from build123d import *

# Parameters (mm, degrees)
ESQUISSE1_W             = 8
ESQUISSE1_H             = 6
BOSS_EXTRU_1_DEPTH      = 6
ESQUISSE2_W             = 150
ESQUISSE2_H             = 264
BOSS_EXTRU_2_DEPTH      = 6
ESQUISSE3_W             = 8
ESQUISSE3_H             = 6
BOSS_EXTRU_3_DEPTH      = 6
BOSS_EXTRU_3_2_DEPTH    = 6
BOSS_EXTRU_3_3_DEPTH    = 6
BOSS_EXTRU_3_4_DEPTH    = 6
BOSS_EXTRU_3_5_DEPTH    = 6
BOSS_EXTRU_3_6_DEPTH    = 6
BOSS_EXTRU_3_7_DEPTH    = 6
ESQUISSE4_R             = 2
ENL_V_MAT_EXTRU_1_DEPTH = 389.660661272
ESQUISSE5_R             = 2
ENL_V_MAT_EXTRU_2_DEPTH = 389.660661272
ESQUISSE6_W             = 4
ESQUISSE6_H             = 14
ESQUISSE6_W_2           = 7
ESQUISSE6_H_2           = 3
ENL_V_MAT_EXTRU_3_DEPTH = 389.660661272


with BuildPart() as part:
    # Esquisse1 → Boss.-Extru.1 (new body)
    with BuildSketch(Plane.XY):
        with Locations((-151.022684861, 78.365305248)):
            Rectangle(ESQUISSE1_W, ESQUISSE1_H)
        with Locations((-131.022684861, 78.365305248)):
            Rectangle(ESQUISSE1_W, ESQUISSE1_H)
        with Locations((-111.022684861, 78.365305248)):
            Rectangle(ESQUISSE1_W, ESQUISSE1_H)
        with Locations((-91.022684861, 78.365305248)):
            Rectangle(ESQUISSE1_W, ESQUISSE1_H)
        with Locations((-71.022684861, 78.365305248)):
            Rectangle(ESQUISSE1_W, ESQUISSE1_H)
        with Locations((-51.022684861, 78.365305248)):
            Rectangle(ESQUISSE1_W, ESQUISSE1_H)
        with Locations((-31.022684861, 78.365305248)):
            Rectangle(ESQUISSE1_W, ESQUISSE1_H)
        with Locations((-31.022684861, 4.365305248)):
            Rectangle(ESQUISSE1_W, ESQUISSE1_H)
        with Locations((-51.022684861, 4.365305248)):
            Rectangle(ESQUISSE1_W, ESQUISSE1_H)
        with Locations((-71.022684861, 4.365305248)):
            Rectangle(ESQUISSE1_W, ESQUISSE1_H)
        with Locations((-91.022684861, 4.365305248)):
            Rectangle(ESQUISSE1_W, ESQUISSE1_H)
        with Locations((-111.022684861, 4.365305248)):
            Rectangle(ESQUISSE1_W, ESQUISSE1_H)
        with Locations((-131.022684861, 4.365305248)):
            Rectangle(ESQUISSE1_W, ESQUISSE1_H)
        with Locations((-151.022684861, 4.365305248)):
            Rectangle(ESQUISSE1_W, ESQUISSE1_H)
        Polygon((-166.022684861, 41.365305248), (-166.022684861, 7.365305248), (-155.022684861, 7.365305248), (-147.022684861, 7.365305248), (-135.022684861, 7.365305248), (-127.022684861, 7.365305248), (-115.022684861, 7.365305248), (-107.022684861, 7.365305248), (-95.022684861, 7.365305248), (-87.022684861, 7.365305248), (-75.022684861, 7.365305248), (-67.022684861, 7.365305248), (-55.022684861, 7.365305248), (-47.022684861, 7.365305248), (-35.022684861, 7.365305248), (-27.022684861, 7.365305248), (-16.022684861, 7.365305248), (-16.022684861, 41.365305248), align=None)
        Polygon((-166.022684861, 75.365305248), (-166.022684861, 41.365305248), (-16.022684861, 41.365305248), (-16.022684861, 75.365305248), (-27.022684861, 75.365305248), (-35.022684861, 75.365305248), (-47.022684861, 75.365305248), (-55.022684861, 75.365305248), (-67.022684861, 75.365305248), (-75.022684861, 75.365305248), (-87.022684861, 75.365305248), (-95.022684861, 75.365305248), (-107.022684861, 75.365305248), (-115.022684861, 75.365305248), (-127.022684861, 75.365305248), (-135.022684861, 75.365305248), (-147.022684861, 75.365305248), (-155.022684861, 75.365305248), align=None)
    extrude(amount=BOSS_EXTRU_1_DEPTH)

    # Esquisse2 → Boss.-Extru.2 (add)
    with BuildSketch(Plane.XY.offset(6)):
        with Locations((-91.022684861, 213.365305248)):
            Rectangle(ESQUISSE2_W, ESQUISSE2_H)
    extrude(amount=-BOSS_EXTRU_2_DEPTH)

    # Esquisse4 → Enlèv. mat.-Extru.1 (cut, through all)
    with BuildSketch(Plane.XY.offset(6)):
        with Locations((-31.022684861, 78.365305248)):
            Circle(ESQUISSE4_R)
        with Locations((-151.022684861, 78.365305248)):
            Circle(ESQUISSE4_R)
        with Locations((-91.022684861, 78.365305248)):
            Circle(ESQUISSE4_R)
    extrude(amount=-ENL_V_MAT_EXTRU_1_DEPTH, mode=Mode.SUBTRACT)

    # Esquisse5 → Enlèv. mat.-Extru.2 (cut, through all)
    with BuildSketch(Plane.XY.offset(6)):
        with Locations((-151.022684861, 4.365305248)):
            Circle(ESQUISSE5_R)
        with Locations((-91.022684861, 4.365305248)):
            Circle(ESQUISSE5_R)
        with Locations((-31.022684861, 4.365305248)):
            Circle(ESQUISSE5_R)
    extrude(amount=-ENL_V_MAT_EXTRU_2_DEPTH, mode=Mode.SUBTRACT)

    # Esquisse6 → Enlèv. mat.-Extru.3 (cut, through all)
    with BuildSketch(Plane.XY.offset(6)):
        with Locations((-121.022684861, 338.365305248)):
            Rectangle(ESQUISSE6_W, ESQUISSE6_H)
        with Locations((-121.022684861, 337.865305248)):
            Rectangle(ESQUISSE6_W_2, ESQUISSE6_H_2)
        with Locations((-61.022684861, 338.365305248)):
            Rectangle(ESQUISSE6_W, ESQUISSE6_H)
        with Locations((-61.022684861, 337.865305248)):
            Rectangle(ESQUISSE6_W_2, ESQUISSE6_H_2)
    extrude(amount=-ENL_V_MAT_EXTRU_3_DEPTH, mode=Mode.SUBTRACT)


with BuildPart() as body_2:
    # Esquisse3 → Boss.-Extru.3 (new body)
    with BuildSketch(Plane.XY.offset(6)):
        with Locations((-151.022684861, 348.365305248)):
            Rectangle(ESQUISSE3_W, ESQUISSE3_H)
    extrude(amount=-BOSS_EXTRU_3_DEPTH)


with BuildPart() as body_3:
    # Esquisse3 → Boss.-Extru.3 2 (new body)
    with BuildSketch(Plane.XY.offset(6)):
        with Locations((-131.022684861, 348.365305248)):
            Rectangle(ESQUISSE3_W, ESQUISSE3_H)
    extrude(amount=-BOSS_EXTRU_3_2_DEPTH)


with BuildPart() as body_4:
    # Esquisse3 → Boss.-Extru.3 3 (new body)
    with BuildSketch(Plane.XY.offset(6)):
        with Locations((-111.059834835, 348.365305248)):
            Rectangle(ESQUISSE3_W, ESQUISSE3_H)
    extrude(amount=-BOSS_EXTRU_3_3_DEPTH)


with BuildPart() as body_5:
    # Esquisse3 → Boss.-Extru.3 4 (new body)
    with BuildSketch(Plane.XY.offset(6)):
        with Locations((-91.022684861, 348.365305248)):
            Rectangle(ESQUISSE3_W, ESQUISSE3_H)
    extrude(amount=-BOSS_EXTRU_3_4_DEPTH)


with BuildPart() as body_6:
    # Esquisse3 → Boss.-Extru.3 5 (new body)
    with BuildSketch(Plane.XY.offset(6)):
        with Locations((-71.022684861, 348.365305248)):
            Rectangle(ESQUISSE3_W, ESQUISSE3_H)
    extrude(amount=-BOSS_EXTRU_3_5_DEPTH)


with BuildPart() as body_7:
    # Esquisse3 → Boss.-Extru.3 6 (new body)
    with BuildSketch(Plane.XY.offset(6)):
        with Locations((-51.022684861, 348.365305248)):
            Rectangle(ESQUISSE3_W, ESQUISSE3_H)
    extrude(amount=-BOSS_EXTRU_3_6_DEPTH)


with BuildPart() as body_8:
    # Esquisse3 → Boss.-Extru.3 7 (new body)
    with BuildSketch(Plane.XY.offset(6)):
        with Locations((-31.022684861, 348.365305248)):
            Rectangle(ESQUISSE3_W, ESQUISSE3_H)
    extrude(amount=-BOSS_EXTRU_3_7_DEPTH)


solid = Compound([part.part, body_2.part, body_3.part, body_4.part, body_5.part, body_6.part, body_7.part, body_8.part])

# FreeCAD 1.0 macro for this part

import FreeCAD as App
import Part
import Sketcher
from FreeCAD import Vector

doc = App.newDocument("Part")
body = doc.addObject("PartDesign::Body", "Body")

# Sketch on XY plane
sketch1 = body.newObject("Sketcher::SketchObject", "Sketch")
sketch1.AttachmentSupport = (doc.getObject("XY_Plane"), [""])
sketch1.MapMode = "FlatFace"
sketch1.addGeometry([
    Part.LineSegment(Vector(-155.022685, 81.365305, 0), Vector(-155.022685, 75.365305, 0)),  # 0
    Part.LineSegment(Vector(-155.022685, 75.365305, 0), Vector(-166.022685, 75.365305, 0)),  # 1
    Part.LineSegment(Vector(-166.022685, 75.365305, 0), Vector(-166.022685, 7.365305, 0)),  # 2
    Part.LineSegment(Vector(-166.022685, 7.365305, 0), Vector(-155.022685, 7.365305, 0)),  # 3
    Part.LineSegment(Vector(-155.022685, 7.365305, 0), Vector(-155.022685, 1.365305, 0)),  # 4
    Part.LineSegment(Vector(-155.022685, 1.365305, 0), Vector(-147.022685, 1.365305, 0)),  # 5
    Part.LineSegment(Vector(-147.022685, 1.365305, 0), Vector(-147.022685, 7.365305, 0)),  # 6
    Part.LineSegment(Vector(-147.022685, 7.365305, 0), Vector(-135.022685, 7.365305, 0)),  # 7
    Part.LineSegment(Vector(-135.022685, 7.365305, 0), Vector(-135.022685, 1.365305, 0)),  # 8
    Part.LineSegment(Vector(-135.022685, 1.365305, 0), Vector(-127.022685, 1.365305, 0)),  # 9
    Part.LineSegment(Vector(-127.022685, 1.365305, 0), Vector(-127.022685, 7.365305, 0)),  # 10
    Part.LineSegment(Vector(-127.022685, 7.365305, 0), Vector(-115.022685, 7.365305, 0)),  # 11
    Part.LineSegment(Vector(-115.022685, 7.365305, 0), Vector(-115.022685, 1.365305, 0)),  # 12
    Part.LineSegment(Vector(-115.022685, 1.365305, 0), Vector(-107.022685, 1.365305, 0)),  # 13
    Part.LineSegment(Vector(-107.022685, 1.365305, 0), Vector(-107.022685, 7.365305, 0)),  # 14
    Part.LineSegment(Vector(-107.022685, 7.365305, 0), Vector(-95.022685, 7.365305, 0)),  # 15
    Part.LineSegment(Vector(-95.022685, 7.365305, 0), Vector(-95.022685, 1.365305, 0)),  # 16
    Part.LineSegment(Vector(-95.022685, 1.365305, 0), Vector(-87.022685, 1.365305, 0)),  # 17
    Part.LineSegment(Vector(-87.022685, 1.365305, 0), Vector(-87.022685, 7.365305, 0)),  # 18
    Part.LineSegment(Vector(-87.022685, 7.365305, 0), Vector(-75.022685, 7.365305, 0)),  # 19
    Part.LineSegment(Vector(-75.022685, 7.365305, 0), Vector(-75.022685, 1.365305, 0)),  # 20
    Part.LineSegment(Vector(-75.022685, 1.365305, 0), Vector(-67.022685, 1.365305, 0)),  # 21
    Part.LineSegment(Vector(-67.022685, 1.365305, 0), Vector(-67.022685, 7.365305, 0)),  # 22
    Part.LineSegment(Vector(-67.022685, 7.365305, 0), Vector(-55.022685, 7.365305, 0)),  # 23
    Part.LineSegment(Vector(-55.022685, 7.365305, 0), Vector(-55.022685, 1.365305, 0)),  # 24
    Part.LineSegment(Vector(-55.022685, 1.365305, 0), Vector(-47.022685, 1.365305, 0)),  # 25
    Part.LineSegment(Vector(-47.022685, 1.365305, 0), Vector(-47.022685, 7.365305, 0)),  # 26
    Part.LineSegment(Vector(-47.022685, 7.365305, 0), Vector(-35.022685, 7.365305, 0)),  # 27
    Part.LineSegment(Vector(-35.022685, 7.365305, 0), Vector(-35.022685, 1.365305, 0)),  # 28
    Part.LineSegment(Vector(-35.022685, 1.365305, 0), Vector(-27.022685, 1.365305, 0)),  # 29
    Part.LineSegment(Vector(-27.022685, 1.365305, 0), Vector(-27.022685, 7.365305, 0)),  # 30
    Part.LineSegment(Vector(-27.022685, 7.365305, 0), Vector(-16.022685, 7.365305, 0)),  # 31
    Part.LineSegment(Vector(-16.022685, 7.365305, 0), Vector(-16.022685, 75.365305, 0)),  # 32
    Part.LineSegment(Vector(-16.022685, 75.365305, 0), Vector(-27.022685, 75.365305, 0)),  # 33
    Part.LineSegment(Vector(-27.022685, 75.365305, 0), Vector(-27.022685, 81.365305, 0)),  # 34
    Part.LineSegment(Vector(-27.022685, 81.365305, 0), Vector(-35.022685, 81.365305, 0)),  # 35
    Part.LineSegment(Vector(-35.022685, 81.365305, 0), Vector(-35.022685, 75.365305, 0)),  # 36
    Part.LineSegment(Vector(-35.022685, 75.365305, 0), Vector(-47.022685, 75.365305, 0)),  # 37
    Part.LineSegment(Vector(-47.022685, 75.365305, 0), Vector(-47.022685, 81.365305, 0)),  # 38
    Part.LineSegment(Vector(-47.022685, 81.365305, 0), Vector(-55.022685, 81.365305, 0)),  # 39
    Part.LineSegment(Vector(-55.022685, 81.365305, 0), Vector(-55.022685, 75.365305, 0)),  # 40
    Part.LineSegment(Vector(-55.022685, 75.365305, 0), Vector(-67.022685, 75.365305, 0)),  # 41
    Part.LineSegment(Vector(-67.022685, 75.365305, 0), Vector(-67.022685, 81.365305, 0)),  # 42
    Part.LineSegment(Vector(-67.022685, 81.365305, 0), Vector(-75.022685, 81.365305, 0)),  # 43
    Part.LineSegment(Vector(-75.022685, 81.365305, 0), Vector(-75.022685, 75.365305, 0)),  # 44
    Part.LineSegment(Vector(-75.022685, 75.365305, 0), Vector(-87.022685, 75.365305, 0)),  # 45
    Part.LineSegment(Vector(-87.022685, 75.365305, 0), Vector(-87.022685, 81.365305, 0)),  # 46
    Part.LineSegment(Vector(-87.022685, 81.365305, 0), Vector(-95.022685, 81.365305, 0)),  # 47
    Part.LineSegment(Vector(-95.022685, 81.365305, 0), Vector(-95.022685, 75.365305, 0)),  # 48
    Part.LineSegment(Vector(-95.022685, 75.365305, 0), Vector(-107.022685, 75.365305, 0)),  # 49
    Part.LineSegment(Vector(-107.022685, 75.365305, 0), Vector(-107.022685, 81.365305, 0)),  # 50
    Part.LineSegment(Vector(-107.022685, 81.365305, 0), Vector(-115.022685, 81.365305, 0)),  # 51
    Part.LineSegment(Vector(-115.022685, 81.365305, 0), Vector(-115.022685, 75.365305, 0)),  # 52
    Part.LineSegment(Vector(-115.022685, 75.365305, 0), Vector(-127.022685, 75.365305, 0)),  # 53
    Part.LineSegment(Vector(-127.022685, 75.365305, 0), Vector(-127.022685, 81.365305, 0)),  # 54
    Part.LineSegment(Vector(-127.022685, 81.365305, 0), Vector(-135.022685, 81.365305, 0)),  # 55
    Part.LineSegment(Vector(-135.022685, 81.365305, 0), Vector(-135.022685, 75.365305, 0)),  # 56
    Part.LineSegment(Vector(-135.022685, 75.365305, 0), Vector(-147.022685, 75.365305, 0)),  # 57
    Part.LineSegment(Vector(-147.022685, 75.365305, 0), Vector(-147.022685, 81.365305, 0)),  # 58
    Part.LineSegment(Vector(-147.022685, 81.365305, 0), Vector(-155.022685, 81.365305, 0)),  # 59
], False)
sketch1.addConstraint([
    Sketcher.Constraint("Coincident", 0, 2, 1, 1),
    Sketcher.Constraint("Coincident", 1, 2, 2, 1),
    Sketcher.Constraint("Coincident", 2, 2, 3, 1),
    Sketcher.Constraint("Coincident", 3, 2, 4, 1),
    Sketcher.Constraint("Coincident", 4, 2, 5, 1),
    Sketcher.Constraint("Coincident", 5, 2, 6, 1),
    Sketcher.Constraint("Coincident", 6, 2, 7, 1),
    Sketcher.Constraint("Coincident", 7, 2, 8, 1),
    Sketcher.Constraint("Coincident", 8, 2, 9, 1),
    Sketcher.Constraint("Coincident", 9, 2, 10, 1),
    Sketcher.Constraint("Coincident", 10, 2, 11, 1),
    Sketcher.Constraint("Coincident", 11, 2, 12, 1),
    Sketcher.Constraint("Coincident", 12, 2, 13, 1),
    Sketcher.Constraint("Coincident", 13, 2, 14, 1),
    Sketcher.Constraint("Coincident", 14, 2, 15, 1),
    Sketcher.Constraint("Coincident", 15, 2, 16, 1),
    Sketcher.Constraint("Coincident", 16, 2, 17, 1),
    Sketcher.Constraint("Coincident", 17, 2, 18, 1),
    Sketcher.Constraint("Coincident", 18, 2, 19, 1),
    Sketcher.Constraint("Coincident", 19, 2, 20, 1),
    Sketcher.Constraint("Coincident", 20, 2, 21, 1),
    Sketcher.Constraint("Coincident", 21, 2, 22, 1),
    Sketcher.Constraint("Coincident", 22, 2, 23, 1),
    Sketcher.Constraint("Coincident", 23, 2, 24, 1),
    Sketcher.Constraint("Coincident", 24, 2, 25, 1),
    Sketcher.Constraint("Coincident", 25, 2, 26, 1),
    Sketcher.Constraint("Coincident", 26, 2, 27, 1),
    Sketcher.Constraint("Coincident", 27, 2, 28, 1),
    Sketcher.Constraint("Coincident", 28, 2, 29, 1),
    Sketcher.Constraint("Coincident", 29, 2, 30, 1),
    Sketcher.Constraint("Coincident", 30, 2, 31, 1),
    Sketcher.Constraint("Coincident", 31, 2, 32, 1),
    Sketcher.Constraint("Coincident", 32, 2, 33, 1),
    Sketcher.Constraint("Coincident", 33, 2, 34, 1),
    Sketcher.Constraint("Coincident", 34, 2, 35, 1),
    Sketcher.Constraint("Coincident", 35, 2, 36, 1),
    Sketcher.Constraint("Coincident", 36, 2, 37, 1),
    Sketcher.Constraint("Coincident", 37, 2, 38, 1),
    Sketcher.Constraint("Coincident", 38, 2, 39, 1),
    Sketcher.Constraint("Coincident", 39, 2, 40, 1),
    Sketcher.Constraint("Coincident", 40, 2, 41, 1),
    Sketcher.Constraint("Coincident", 41, 2, 42, 1),
    Sketcher.Constraint("Coincident", 42, 2, 43, 1),
    Sketcher.Constraint("Coincident", 43, 2, 44, 1),
    Sketcher.Constraint("Coincident", 44, 2, 45, 1),
    Sketcher.Constraint("Coincident", 45, 2, 46, 1),
    Sketcher.Constraint("Coincident", 46, 2, 47, 1),
    Sketcher.Constraint("Coincident", 47, 2, 48, 1),
    Sketcher.Constraint("Coincident", 48, 2, 49, 1),
    Sketcher.Constraint("Coincident", 49, 2, 50, 1),
    Sketcher.Constraint("Coincident", 50, 2, 51, 1),
    Sketcher.Constraint("Coincident", 51, 2, 52, 1),
    Sketcher.Constraint("Coincident", 52, 2, 53, 1),
    Sketcher.Constraint("Coincident", 53, 2, 54, 1),
    Sketcher.Constraint("Coincident", 54, 2, 55, 1),
    Sketcher.Constraint("Coincident", 55, 2, 56, 1),
    Sketcher.Constraint("Coincident", 56, 2, 57, 1),
    Sketcher.Constraint("Coincident", 57, 2, 58, 1),
    Sketcher.Constraint("Coincident", 58, 2, 59, 1),
    Sketcher.Constraint("Coincident", 59, 2, 0, 1),
    Sketcher.Constraint("Vertical", 0),
    Sketcher.Constraint("Horizontal", 1),
    Sketcher.Constraint("Vertical", 2),
    Sketcher.Constraint("Horizontal", 3),
    Sketcher.Constraint("Vertical", 4),
    Sketcher.Constraint("Horizontal", 5),
    Sketcher.Constraint("Vertical", 6),
    Sketcher.Constraint("Horizontal", 7),
    Sketcher.Constraint("Vertical", 8),
    Sketcher.Constraint("Horizontal", 9),
    Sketcher.Constraint("Vertical", 10),
    Sketcher.Constraint("Horizontal", 11),
    Sketcher.Constraint("Vertical", 12),
    Sketcher.Constraint("Horizontal", 13),
    Sketcher.Constraint("Vertical", 14),
    Sketcher.Constraint("Horizontal", 15),
    Sketcher.Constraint("Vertical", 16),
    Sketcher.Constraint("Horizontal", 17),
    Sketcher.Constraint("Vertical", 18),
    Sketcher.Constraint("Horizontal", 19),
    Sketcher.Constraint("Vertical", 20),
    Sketcher.Constraint("Horizontal", 21),
    Sketcher.Constraint("Vertical", 22),
    Sketcher.Constraint("Horizontal", 23),
    Sketcher.Constraint("Vertical", 24),
    Sketcher.Constraint("Horizontal", 25),
    Sketcher.Constraint("Vertical", 26),
    Sketcher.Constraint("Horizontal", 27),
    Sketcher.Constraint("Vertical", 28),
    Sketcher.Constraint("Horizontal", 29),
    Sketcher.Constraint("Vertical", 30),
    Sketcher.Constraint("Horizontal", 31),
    Sketcher.Constraint("Vertical", 32),
    Sketcher.Constraint("Horizontal", 33),
    Sketcher.Constraint("Vertical", 34),
    Sketcher.Constraint("Horizontal", 35),
    Sketcher.Constraint("Vertical", 36),
    Sketcher.Constraint("Horizontal", 37),
    Sketcher.Constraint("Vertical", 38),
    Sketcher.Constraint("Horizontal", 39),
    Sketcher.Constraint("Vertical", 40),
    Sketcher.Constraint("Horizontal", 41),
    Sketcher.Constraint("Vertical", 42),
    Sketcher.Constraint("Horizontal", 43),
    Sketcher.Constraint("Vertical", 44),
    Sketcher.Constraint("Horizontal", 45),
    Sketcher.Constraint("Vertical", 46),
    Sketcher.Constraint("Horizontal", 47),
    Sketcher.Constraint("Vertical", 48),
    Sketcher.Constraint("Horizontal", 49),
    Sketcher.Constraint("Vertical", 50),
    Sketcher.Constraint("Horizontal", 51),
    Sketcher.Constraint("Vertical", 52),
    Sketcher.Constraint("Horizontal", 53),
    Sketcher.Constraint("Vertical", 54),
    Sketcher.Constraint("Horizontal", 55),
    Sketcher.Constraint("Vertical", 56),
    Sketcher.Constraint("Horizontal", 57),
    Sketcher.Constraint("Vertical", 58),
    Sketcher.Constraint("Horizontal", 59),
    Sketcher.Constraint("Horizontal", 3, 2, 6, 2),
    Sketcher.Constraint("Horizontal", 5, 2, 8, 2),
    Sketcher.Constraint("Horizontal", 7, 2, 10, 2),
    Sketcher.Constraint("Horizontal", 9, 2, 12, 2),
    Sketcher.Constraint("Horizontal", 11, 2, 14, 2),
    Sketcher.Constraint("Horizontal", 13, 2, 16, 2),
    Sketcher.Constraint("Horizontal", 15, 2, 18, 2),
    Sketcher.Constraint("Horizontal", 17, 2, 20, 2),
    Sketcher.Constraint("Horizontal", 19, 2, 22, 2),
    Sketcher.Constraint("Horizontal", 21, 2, 24, 2),
    Sketcher.Constraint("Horizontal", 23, 2, 26, 2),
    Sketcher.Constraint("Horizontal", 25, 2, 28, 2),
    Sketcher.Constraint("Horizontal", 27, 2, 30, 2),
    Sketcher.Constraint("Horizontal", 1, 2, 32, 2),
    Sketcher.Constraint("Horizontal", 33, 2, 36, 2),
    Sketcher.Constraint("Horizontal", 35, 2, 38, 2),
    Sketcher.Constraint("Horizontal", 37, 2, 40, 2),
    Sketcher.Constraint("Horizontal", 39, 2, 42, 2),
    Sketcher.Constraint("Horizontal", 41, 2, 44, 2),
    Sketcher.Constraint("Horizontal", 43, 2, 46, 2),
    Sketcher.Constraint("Horizontal", 45, 2, 48, 2),
    Sketcher.Constraint("Horizontal", 47, 2, 50, 2),
    Sketcher.Constraint("Horizontal", 49, 2, 52, 2),
    Sketcher.Constraint("Horizontal", 51, 2, 54, 2),
    Sketcher.Constraint("Horizontal", 53, 2, 56, 2),
    Sketcher.Constraint("Horizontal", 55, 2, 58, 2),
    Sketcher.Constraint("Vertical", 0, 2, 3, 2),
    Sketcher.Constraint("Vertical", 30, 2, 33, 2),
    Sketcher.Constraint("Vertical", 28, 2, 35, 2),
    Sketcher.Constraint("Vertical", 26, 2, 37, 2),
    Sketcher.Constraint("Vertical", 24, 2, 39, 2),
    Sketcher.Constraint("Vertical", 22, 2, 41, 2),
    Sketcher.Constraint("Vertical", 20, 2, 43, 2),
    Sketcher.Constraint("Vertical", 18, 2, 45, 2),
    Sketcher.Constraint("Vertical", 16, 2, 47, 2),
    Sketcher.Constraint("Vertical", 14, 2, 49, 2),
    Sketcher.Constraint("Vertical", 12, 2, 51, 2),
    Sketcher.Constraint("Vertical", 10, 2, 53, 2),
    Sketcher.Constraint("Vertical", 8, 2, 55, 2),
    Sketcher.Constraint("Vertical", 6, 2, 57, 2),
    Sketcher.Constraint("Equal", 5, 9),
    Sketcher.Constraint("Equal", 7, 11),
    Sketcher.Constraint("Equal", 9, 13),
    Sketcher.Constraint("Equal", 11, 15),
    Sketcher.Constraint("Equal", 13, 17),
    Sketcher.Constraint("Equal", 15, 19),
    Sketcher.Constraint("Equal", 17, 21),
    Sketcher.Constraint("Equal", 19, 23),
    Sketcher.Constraint("Equal", 21, 25),
    Sketcher.Constraint("Equal", 23, 27),
    Sketcher.Constraint("Equal", 25, 29),
    Sketcher.Constraint("Equal", 3, 31),
    Sketcher.Constraint("Equal", 0, 4),
    Sketcher.Constraint("DistanceX", 1, 2, 1, 1, 11.0),
    Sketcher.Constraint("DistanceX", 5, 1, 5, 2, 8.0),
    Sketcher.Constraint("DistanceX", 7, 1, 7, 2, 12.0),
    Sketcher.Constraint("DistanceY", 0, 2, 0, 1, 6.0),
    Sketcher.Constraint("DistanceY", 2, 2, 2, 1, 68.0),
    Sketcher.Constraint("DistanceX", 0, 2, -1, 1, 155.022685),
    Sketcher.Constraint("DistanceY", -1, 1, 0, 2, 75.365305),
])
pad1 = body.newObject("PartDesign::Pad", "Pad")
pad1.Profile = sketch1
pad1.Length = 6

# Sketch on XY plane
sketch2 = body.newObject("Sketcher::SketchObject", "Sketch001")
sketch2.AttachmentSupport = (doc.getObject("XY_Plane"), [""])
sketch2.MapMode = "FlatFace"
sketch2.AttachmentOffset = App.Placement(Vector(0, 0, 6), App.Rotation())
sketch2.addGeometry([
    Part.LineSegment(Vector(-166.022685, 345.365305, 0), Vector(-166.022685, 81.365305, 0)),
    Part.LineSegment(Vector(-166.022685, 81.365305, 0), Vector(-16.022685, 81.365305, 0)),
    Part.LineSegment(Vector(-16.022685, 81.365305, 0), Vector(-16.022685, 345.365305, 0)),
    Part.LineSegment(Vector(-16.022685, 345.365305, 0), Vector(-166.022685, 345.365305, 0)),
], False)
sketch2.addConstraint([
    Sketcher.Constraint("Coincident", 0, 2, 1, 1),
    Sketcher.Constraint("Coincident", 1, 2, 2, 1),
    Sketcher.Constraint("Coincident", 2, 2, 3, 1),
    Sketcher.Constraint("Coincident", 3, 2, 0, 1),
    Sketcher.Constraint("Vertical", 0),
    Sketcher.Constraint("Horizontal", 1),
    Sketcher.Constraint("Vertical", 2),
    Sketcher.Constraint("Horizontal", 3),
    Sketcher.Constraint("DistanceX", 1, 1, 1, 2, 150.0),
    Sketcher.Constraint("DistanceY", 0, 2, 0, 1, 264.0),
    Sketcher.Constraint("DistanceX", 0, 2, -1, 1, 166.022685),
    Sketcher.Constraint("DistanceY", -1, 1, 0, 2, 81.365305),
])
pad2 = body.newObject("PartDesign::Pad", "Pad001")
pad2.Profile = sketch2
pad2.Length = 6
pad2.Reversed = True

# Sketch on XY plane
sketch3 = body.newObject("Sketcher::SketchObject", "Sketch002")
sketch3.AttachmentSupport = (doc.getObject("XY_Plane"), [""])
sketch3.MapMode = "FlatFace"
sketch3.AttachmentOffset = App.Placement(Vector(0, 0, 6), App.Rotation())
sketch3.addGeometry([
    Part.Circle(Vector(-31.022685, 78.365305, 0), Vector(0, 0, 1), 2),
    Part.Circle(Vector(-151.022685, 78.365305, 0), Vector(0, 0, 1), 2),
    Part.Circle(Vector(-91.022685, 78.365305, 0), Vector(0, 0, 1), 2),
], False)
sketch3.addConstraint([
    Sketcher.Constraint("Equal", 0, 1),
    Sketcher.Constraint("Equal", 1, 2),
    Sketcher.Constraint("Horizontal", 0, 3, 1, 3),
    Sketcher.Constraint("Horizontal", 1, 3, 2, 3),
    Sketcher.Constraint("Diameter", 0, 4.0),
    Sketcher.Constraint("DistanceX", 1, 3, 0, 3, 120.0),
    Sketcher.Constraint("DistanceX", 1, 3, 2, 3, 60.0),
    Sketcher.Constraint("DistanceX", 0, 3, -1, 1, 31.022685),
    Sketcher.Constraint("DistanceY", -1, 1, 0, 3, 78.365305),
])
pocket1 = body.newObject("PartDesign::Pocket", "Pocket")
pocket1.Profile = sketch3
pocket1.Type = "ThroughAll"

# Sketch on XY plane
sketch4 = body.newObject("Sketcher::SketchObject", "Sketch003")
sketch4.AttachmentSupport = (doc.getObject("XY_Plane"), [""])
sketch4.MapMode = "FlatFace"
sketch4.AttachmentOffset = App.Placement(Vector(0, 0, 6), App.Rotation())
sketch4.addGeometry([
    Part.Circle(Vector(-151.022685, 4.365305, 0), Vector(0, 0, 1), 2),
    Part.Circle(Vector(-91.022685, 4.365305, 0), Vector(0, 0, 1), 2),
    Part.Circle(Vector(-31.022685, 4.365305, 0), Vector(0, 0, 1), 2),
], False)
sketch4.addConstraint([
    Sketcher.Constraint("Equal", 0, 1),
    Sketcher.Constraint("Equal", 1, 2),
    Sketcher.Constraint("Horizontal", 0, 3, 1, 3),
    Sketcher.Constraint("Horizontal", 1, 3, 2, 3),
    Sketcher.Constraint("Diameter", 0, 4.0),
    Sketcher.Constraint("DistanceX", 0, 3, 1, 3, 60.0),
    Sketcher.Constraint("DistanceX", 1, 3, 2, 3, 60.0),
    Sketcher.Constraint("DistanceX", 0, 3, -1, 1, 151.022685),
    Sketcher.Constraint("DistanceY", -1, 1, 0, 3, 4.365305),
])
pocket2 = body.newObject("PartDesign::Pocket", "Pocket001")
pocket2.Profile = sketch4
pocket2.Type = "ThroughAll"

# Sketch on XY plane
sketch5 = body.newObject("Sketcher::SketchObject", "Sketch004")
sketch5.AttachmentSupport = (doc.getObject("XY_Plane"), [""])
sketch5.MapMode = "FlatFace"
sketch5.AttachmentOffset = App.Placement(Vector(0, 0, 6), App.Rotation())
sketch5.addGeometry([
    Part.LineSegment(Vector(-123.022685, 336.365305, 0), Vector(-123.022685, 331.365305, 0)),  # 0
    Part.LineSegment(Vector(-123.022685, 331.365305, 0), Vector(-119.022685, 331.365305, 0)),  # 1
    Part.LineSegment(Vector(-119.022685, 331.365305, 0), Vector(-119.022685, 336.365305, 0)),  # 2
    Part.LineSegment(Vector(-119.022685, 336.365305, 0), Vector(-117.522685, 336.365305, 0)),  # 3
    Part.LineSegment(Vector(-117.522685, 336.365305, 0), Vector(-117.522685, 339.365305, 0)),  # 4
    Part.LineSegment(Vector(-117.522685, 339.365305, 0), Vector(-119.022685, 339.365305, 0)),  # 5
    Part.LineSegment(Vector(-119.022685, 339.365305, 0), Vector(-119.022685, 345.365305, 0)),  # 6
    Part.LineSegment(Vector(-119.022685, 345.365305, 0), Vector(-123.022685, 345.365305, 0)),  # 7
    Part.LineSegment(Vector(-123.022685, 345.365305, 0), Vector(-123.022685, 339.365305, 0)),  # 8
    Part.LineSegment(Vector(-123.022685, 339.365305, 0), Vector(-124.522685, 339.365305, 0)),  # 9
    Part.LineSegment(Vector(-124.522685, 339.365305, 0), Vector(-124.522685, 336.365305, 0)),  # 10
    Part.LineSegment(Vector(-124.522685, 336.365305, 0), Vector(-123.022685, 336.365305, 0)),  # 11
    Part.LineSegment(Vector(-63.022685, 336.365305, 0), Vector(-63.022685, 331.365305, 0)),  # 12
    Part.LineSegment(Vector(-63.022685, 331.365305, 0), Vector(-59.022685, 331.365305, 0)),  # 13
    Part.LineSegment(Vector(-59.022685, 331.365305, 0), Vector(-59.022685, 336.365305, 0)),  # 14
    Part.LineSegment(Vector(-59.022685, 336.365305, 0), Vector(-57.522685, 336.365305, 0)),  # 15
    Part.LineSegment(Vector(-57.522685, 336.365305, 0), Vector(-57.522685, 339.365305, 0)),  # 16
    Part.LineSegment(Vector(-57.522685, 339.365305, 0), Vector(-59.022685, 339.365305, 0)),  # 17
    Part.LineSegment(Vector(-59.022685, 339.365305, 0), Vector(-59.022685, 345.365305, 0)),  # 18
    Part.LineSegment(Vector(-59.022685, 345.365305, 0), Vector(-63.022685, 345.365305, 0)),  # 19
    Part.LineSegment(Vector(-63.022685, 345.365305, 0), Vector(-63.022685, 339.365305, 0)),  # 20
    Part.LineSegment(Vector(-63.022685, 339.365305, 0), Vector(-64.522685, 339.365305, 0)),  # 21
    Part.LineSegment(Vector(-64.522685, 339.365305, 0), Vector(-64.522685, 336.365305, 0)),  # 22
    Part.LineSegment(Vector(-64.522685, 336.365305, 0), Vector(-63.022685, 336.365305, 0)),  # 23
], False)
sketch5.addConstraint([
    Sketcher.Constraint("Coincident", 0, 2, 1, 1),
    Sketcher.Constraint("Coincident", 1, 2, 2, 1),
    Sketcher.Constraint("Coincident", 2, 2, 3, 1),
    Sketcher.Constraint("Coincident", 3, 2, 4, 1),
    Sketcher.Constraint("Coincident", 4, 2, 5, 1),
    Sketcher.Constraint("Coincident", 5, 2, 6, 1),
    Sketcher.Constraint("Coincident", 6, 2, 7, 1),
    Sketcher.Constraint("Coincident", 7, 2, 8, 1),
    Sketcher.Constraint("Coincident", 8, 2, 9, 1),
    Sketcher.Constraint("Coincident", 9, 2, 10, 1),
    Sketcher.Constraint("Coincident", 10, 2, 11, 1),
    Sketcher.Constraint("Coincident", 11, 2, 0, 1),
    Sketcher.Constraint("Coincident", 12, 2, 13, 1),
    Sketcher.Constraint("Coincident", 13, 2, 14, 1),
    Sketcher.Constraint("Coincident", 14, 2, 15, 1),
    Sketcher.Constraint("Coincident", 15, 2, 16, 1),
    Sketcher.Constraint("Coincident", 16, 2, 17, 1),
    Sketcher.Constraint("Coincident", 17, 2, 18, 1),
    Sketcher.Constraint("Coincident", 18, 2, 19, 1),
    Sketcher.Constraint("Coincident", 19, 2, 20, 1),
    Sketcher.Constraint("Coincident", 20, 2, 21, 1),
    Sketcher.Constraint("Coincident", 21, 2, 22, 1),
    Sketcher.Constraint("Coincident", 22, 2, 23, 1),
    Sketcher.Constraint("Coincident", 23, 2, 12, 1),
    Sketcher.Constraint("Vertical", 0),
    Sketcher.Constraint("Horizontal", 1),
    Sketcher.Constraint("Vertical", 2),
    Sketcher.Constraint("Horizontal", 3),
    Sketcher.Constraint("Vertical", 4),
    Sketcher.Constraint("Horizontal", 5),
    Sketcher.Constraint("Vertical", 6),
    Sketcher.Constraint("Horizontal", 7),
    Sketcher.Constraint("Vertical", 8),
    Sketcher.Constraint("Horizontal", 9),
    Sketcher.Constraint("Vertical", 10),
    Sketcher.Constraint("Horizontal", 11),
    Sketcher.Constraint("Vertical", 12),
    Sketcher.Constraint("Horizontal", 13),
    Sketcher.Constraint("Vertical", 14),
    Sketcher.Constraint("Horizontal", 15),
    Sketcher.Constraint("Vertical", 16),
    Sketcher.Constraint("Horizontal", 17),
    Sketcher.Constraint("Vertical", 18),
    Sketcher.Constraint("Horizontal", 19),
    Sketcher.Constraint("Vertical", 20),
    Sketcher.Constraint("Horizontal", 21),
    Sketcher.Constraint("Vertical", 22),
    Sketcher.Constraint("Horizontal", 23),
    Sketcher.Constraint("Horizontal", 5, 2, 8, 2),
    Sketcher.Constraint("Horizontal", 3, 2, 10, 2),
    Sketcher.Constraint("Horizontal", 1, 2, 12, 2),
    Sketcher.Constraint("Horizontal", 11, 2, 14, 2),
    Sketcher.Constraint("Horizontal", 9, 2, 16, 2),
    Sketcher.Constraint("Horizontal", 7, 2, 18, 2),
    Sketcher.Constraint("Horizontal", 17, 2, 20, 2),
    Sketcher.Constraint("Horizontal", 15, 2, 22, 2),
    Sketcher.Constraint("Vertical", 2, 2, 5, 2),
    Sketcher.Constraint("Vertical", 0, 2, 7, 2),
    Sketcher.Constraint("Vertical", 14, 2, 17, 2),
    Sketcher.Constraint("Vertical", 12, 2, 19, 2),
    Sketcher.Constraint("Equal", 5, 9),
    Sketcher.Constraint("Equal", 7, 13),
    Sketcher.Constraint("Equal", 11, 15),
    Sketcher.Constraint("Equal", 17, 21),
    Sketcher.Constraint("DistanceX", 1, 1, 1, 2, 4.0),
    Sketcher.Constraint("DistanceY", 0, 2, 0, 1, 5.0),
    Sketcher.Constraint("DistanceY", 4, 1, 4, 2, 3.0),
    Sketcher.Constraint("DistanceY", 6, 1, 6, 2, 6.0),
    Sketcher.Constraint("DistanceX", 3, 1, 3, 2, 1.5),
    Sketcher.Constraint("DistanceX", 1, 2, 12, 2, 56.0),
    Sketcher.Constraint("DistanceX", 0, 2, -1, 1, 123.022685),
    Sketcher.Constraint("DistanceY", -1, 1, 0, 2, 331.365305),
])
pocket3 = body.newObject("PartDesign::Pocket", "Pocket002")
pocket3.Profile = sketch5
pocket3.Type = "ThroughAll"
body2 = doc.addObject("PartDesign::Body", "Body001")

# Sketch on XY plane
sketch6 = body2.newObject("Sketcher::SketchObject", "Sketch005")
sketch6.AttachmentSupport = (doc.getObject("XY_Plane001"), [""])
sketch6.MapMode = "FlatFace"
sketch6.AttachmentOffset = App.Placement(Vector(0, 0, 6), App.Rotation())
sketch6.addGeometry([
    Part.LineSegment(Vector(-155.022685, 351.365305, 0), Vector(-155.022685, 345.365305, 0)),
    Part.LineSegment(Vector(-155.022685, 345.365305, 0), Vector(-147.022685, 345.365305, 0)),
    Part.LineSegment(Vector(-147.022685, 345.365305, 0), Vector(-147.022685, 351.365305, 0)),
    Part.LineSegment(Vector(-147.022685, 351.365305, 0), Vector(-155.022685, 351.365305, 0)),
], False)
sketch6.addConstraint([
    Sketcher.Constraint("Coincident", 0, 2, 1, 1),
    Sketcher.Constraint("Coincident", 1, 2, 2, 1),
    Sketcher.Constraint("Coincident", 2, 2, 3, 1),
    Sketcher.Constraint("Coincident", 3, 2, 0, 1),
    Sketcher.Constraint("Vertical", 0),
    Sketcher.Constraint("Horizontal", 1),
    Sketcher.Constraint("Vertical", 2),
    Sketcher.Constraint("Horizontal", 3),
    Sketcher.Constraint("DistanceX", 1, 1, 1, 2, 8.0),
    Sketcher.Constraint("DistanceY", 0, 2, 0, 1, 6.0),
    Sketcher.Constraint("DistanceX", 0, 2, -1, 1, 155.022685),
    Sketcher.Constraint("DistanceY", -1, 1, 0, 2, 345.365305),
])
pad3 = body2.newObject("PartDesign::Pad", "Pad002")
pad3.Profile = sketch6
pad3.Length = 6
pad3.Reversed = True
body3 = doc.addObject("PartDesign::Body", "Body002")

# Sketch on XY plane
sketch7 = body3.newObject("Sketcher::SketchObject", "Sketch006")
sketch7.AttachmentSupport = (doc.getObject("XY_Plane002"), [""])
sketch7.MapMode = "FlatFace"
sketch7.AttachmentOffset = App.Placement(Vector(0, 0, 6), App.Rotation())
sketch7.addGeometry([
    Part.LineSegment(Vector(-135.022685, 351.365305, 0), Vector(-135.022685, 345.365305, 0)),
    Part.LineSegment(Vector(-135.022685, 345.365305, 0), Vector(-127.022685, 345.365305, 0)),
    Part.LineSegment(Vector(-127.022685, 345.365305, 0), Vector(-127.022685, 351.365305, 0)),
    Part.LineSegment(Vector(-127.022685, 351.365305, 0), Vector(-135.022685, 351.365305, 0)),
], False)
sketch7.addConstraint([
    Sketcher.Constraint("Coincident", 0, 2, 1, 1),
    Sketcher.Constraint("Coincident", 1, 2, 2, 1),
    Sketcher.Constraint("Coincident", 2, 2, 3, 1),
    Sketcher.Constraint("Coincident", 3, 2, 0, 1),
    Sketcher.Constraint("Vertical", 0),
    Sketcher.Constraint("Horizontal", 1),
    Sketcher.Constraint("Vertical", 2),
    Sketcher.Constraint("Horizontal", 3),
    Sketcher.Constraint("DistanceX", 1, 1, 1, 2, 8.0),
    Sketcher.Constraint("DistanceY", 0, 2, 0, 1, 6.0),
    Sketcher.Constraint("DistanceX", 0, 2, -1, 1, 135.022685),
    Sketcher.Constraint("DistanceY", -1, 1, 0, 2, 345.365305),
])
pad4 = body3.newObject("PartDesign::Pad", "Pad003")
pad4.Profile = sketch7
pad4.Length = 6
pad4.Reversed = True
body4 = doc.addObject("PartDesign::Body", "Body003")

# Sketch on XY plane
sketch8 = body4.newObject("Sketcher::SketchObject", "Sketch007")
sketch8.AttachmentSupport = (doc.getObject("XY_Plane003"), [""])
sketch8.MapMode = "FlatFace"
sketch8.AttachmentOffset = App.Placement(Vector(0, 0, 6), App.Rotation())
sketch8.addGeometry([
    Part.LineSegment(Vector(-115.059835, 351.365305, 0), Vector(-115.059835, 345.365305, 0)),
    Part.LineSegment(Vector(-115.059835, 345.365305, 0), Vector(-107.059835, 345.365305, 0)),
    Part.LineSegment(Vector(-107.059835, 345.365305, 0), Vector(-107.059835, 351.365305, 0)),
    Part.LineSegment(Vector(-107.059835, 351.365305, 0), Vector(-115.059835, 351.365305, 0)),
], False)
sketch8.addConstraint([
    Sketcher.Constraint("Coincident", 0, 2, 1, 1),
    Sketcher.Constraint("Coincident", 1, 2, 2, 1),
    Sketcher.Constraint("Coincident", 2, 2, 3, 1),
    Sketcher.Constraint("Coincident", 3, 2, 0, 1),
    Sketcher.Constraint("Vertical", 0),
    Sketcher.Constraint("Horizontal", 1),
    Sketcher.Constraint("Vertical", 2),
    Sketcher.Constraint("Horizontal", 3),
    Sketcher.Constraint("DistanceX", 1, 1, 1, 2, 8.0),
    Sketcher.Constraint("DistanceY", 0, 2, 0, 1, 6.0),
    Sketcher.Constraint("DistanceX", 0, 2, -1, 1, 115.059835),
    Sketcher.Constraint("DistanceY", -1, 1, 0, 2, 345.365305),
])
pad5 = body4.newObject("PartDesign::Pad", "Pad004")
pad5.Profile = sketch8
pad5.Length = 6
pad5.Reversed = True
body5 = doc.addObject("PartDesign::Body", "Body004")

# Sketch on XY plane
sketch9 = body5.newObject("Sketcher::SketchObject", "Sketch008")
sketch9.AttachmentSupport = (doc.getObject("XY_Plane004"), [""])
sketch9.MapMode = "FlatFace"
sketch9.AttachmentOffset = App.Placement(Vector(0, 0, 6), App.Rotation())
sketch9.addGeometry([
    Part.LineSegment(Vector(-95.022685, 351.365305, 0), Vector(-95.022685, 345.365305, 0)),
    Part.LineSegment(Vector(-95.022685, 345.365305, 0), Vector(-87.022685, 345.365305, 0)),
    Part.LineSegment(Vector(-87.022685, 345.365305, 0), Vector(-87.022685, 351.365305, 0)),
    Part.LineSegment(Vector(-87.022685, 351.365305, 0), Vector(-95.022685, 351.365305, 0)),
], False)
sketch9.addConstraint([
    Sketcher.Constraint("Coincident", 0, 2, 1, 1),
    Sketcher.Constraint("Coincident", 1, 2, 2, 1),
    Sketcher.Constraint("Coincident", 2, 2, 3, 1),
    Sketcher.Constraint("Coincident", 3, 2, 0, 1),
    Sketcher.Constraint("Vertical", 0),
    Sketcher.Constraint("Horizontal", 1),
    Sketcher.Constraint("Vertical", 2),
    Sketcher.Constraint("Horizontal", 3),
    Sketcher.Constraint("DistanceX", 1, 1, 1, 2, 8.0),
    Sketcher.Constraint("DistanceY", 0, 2, 0, 1, 6.0),
    Sketcher.Constraint("DistanceX", 0, 2, -1, 1, 95.022685),
    Sketcher.Constraint("DistanceY", -1, 1, 0, 2, 345.365305),
])
pad6 = body5.newObject("PartDesign::Pad", "Pad005")
pad6.Profile = sketch9
pad6.Length = 6
pad6.Reversed = True
body6 = doc.addObject("PartDesign::Body", "Body005")

# Sketch on XY plane
sketch10 = body6.newObject("Sketcher::SketchObject", "Sketch009")
sketch10.AttachmentSupport = (doc.getObject("XY_Plane005"), [""])
sketch10.MapMode = "FlatFace"
sketch10.AttachmentOffset = App.Placement(Vector(0, 0, 6), App.Rotation())
sketch10.addGeometry([
    Part.LineSegment(Vector(-75.022685, 351.365305, 0), Vector(-75.022685, 345.365305, 0)),
    Part.LineSegment(Vector(-75.022685, 345.365305, 0), Vector(-67.022685, 345.365305, 0)),
    Part.LineSegment(Vector(-67.022685, 345.365305, 0), Vector(-67.022685, 351.365305, 0)),
    Part.LineSegment(Vector(-67.022685, 351.365305, 0), Vector(-75.022685, 351.365305, 0)),
], False)
sketch10.addConstraint([
    Sketcher.Constraint("Coincident", 0, 2, 1, 1),
    Sketcher.Constraint("Coincident", 1, 2, 2, 1),
    Sketcher.Constraint("Coincident", 2, 2, 3, 1),
    Sketcher.Constraint("Coincident", 3, 2, 0, 1),
    Sketcher.Constraint("Vertical", 0),
    Sketcher.Constraint("Horizontal", 1),
    Sketcher.Constraint("Vertical", 2),
    Sketcher.Constraint("Horizontal", 3),
    Sketcher.Constraint("DistanceX", 1, 1, 1, 2, 8.0),
    Sketcher.Constraint("DistanceY", 0, 2, 0, 1, 6.0),
    Sketcher.Constraint("DistanceX", 0, 2, -1, 1, 75.022685),
    Sketcher.Constraint("DistanceY", -1, 1, 0, 2, 345.365305),
])
pad7 = body6.newObject("PartDesign::Pad", "Pad006")
pad7.Profile = sketch10
pad7.Length = 6
pad7.Reversed = True
body7 = doc.addObject("PartDesign::Body", "Body006")

# Sketch on XY plane
sketch11 = body7.newObject("Sketcher::SketchObject", "Sketch010")
sketch11.AttachmentSupport = (doc.getObject("XY_Plane006"), [""])
sketch11.MapMode = "FlatFace"
sketch11.AttachmentOffset = App.Placement(Vector(0, 0, 6), App.Rotation())
sketch11.addGeometry([
    Part.LineSegment(Vector(-55.022685, 351.365305, 0), Vector(-55.022685, 345.365305, 0)),
    Part.LineSegment(Vector(-55.022685, 345.365305, 0), Vector(-47.022685, 345.365305, 0)),
    Part.LineSegment(Vector(-47.022685, 345.365305, 0), Vector(-47.022685, 351.365305, 0)),
    Part.LineSegment(Vector(-47.022685, 351.365305, 0), Vector(-55.022685, 351.365305, 0)),
], False)
sketch11.addConstraint([
    Sketcher.Constraint("Coincident", 0, 2, 1, 1),
    Sketcher.Constraint("Coincident", 1, 2, 2, 1),
    Sketcher.Constraint("Coincident", 2, 2, 3, 1),
    Sketcher.Constraint("Coincident", 3, 2, 0, 1),
    Sketcher.Constraint("Vertical", 0),
    Sketcher.Constraint("Horizontal", 1),
    Sketcher.Constraint("Vertical", 2),
    Sketcher.Constraint("Horizontal", 3),
    Sketcher.Constraint("DistanceX", 1, 1, 1, 2, 8.0),
    Sketcher.Constraint("DistanceY", 0, 2, 0, 1, 6.0),
    Sketcher.Constraint("DistanceX", 0, 2, -1, 1, 55.022685),
    Sketcher.Constraint("DistanceY", -1, 1, 0, 2, 345.365305),
])
pad8 = body7.newObject("PartDesign::Pad", "Pad007")
pad8.Profile = sketch11
pad8.Length = 6
pad8.Reversed = True
body8 = doc.addObject("PartDesign::Body", "Body007")

# Sketch on XY plane
sketch12 = body8.newObject("Sketcher::SketchObject", "Sketch011")
sketch12.AttachmentSupport = (doc.getObject("XY_Plane007"), [""])
sketch12.MapMode = "FlatFace"
sketch12.AttachmentOffset = App.Placement(Vector(0, 0, 6), App.Rotation())
sketch12.addGeometry([
    Part.LineSegment(Vector(-35.022685, 351.365305, 0), Vector(-35.022685, 345.365305, 0)),
    Part.LineSegment(Vector(-35.022685, 345.365305, 0), Vector(-27.022685, 345.365305, 0)),
    Part.LineSegment(Vector(-27.022685, 345.365305, 0), Vector(-27.022685, 351.365305, 0)),
    Part.LineSegment(Vector(-27.022685, 351.365305, 0), Vector(-35.022685, 351.365305, 0)),
], False)
sketch12.addConstraint([
    Sketcher.Constraint("Coincident", 0, 2, 1, 1),
    Sketcher.Constraint("Coincident", 1, 2, 2, 1),
    Sketcher.Constraint("Coincident", 2, 2, 3, 1),
    Sketcher.Constraint("Coincident", 3, 2, 0, 1),
    Sketcher.Constraint("Vertical", 0),
    Sketcher.Constraint("Horizontal", 1),
    Sketcher.Constraint("Vertical", 2),
    Sketcher.Constraint("Horizontal", 3),
    Sketcher.Constraint("DistanceX", 1, 1, 1, 2, 8.0),
    Sketcher.Constraint("DistanceY", 0, 2, 0, 1, 6.0),
    Sketcher.Constraint("DistanceX", 0, 2, -1, 1, 35.022685),
    Sketcher.Constraint("DistanceY", -1, 1, 0, 2, 345.365305),
])
pad9 = body8.newObject("PartDesign::Pad", "Pad008")
pad9.Profile = sketch12
pad9.Length = 6
pad9.Reversed = True

doc.recompute()
